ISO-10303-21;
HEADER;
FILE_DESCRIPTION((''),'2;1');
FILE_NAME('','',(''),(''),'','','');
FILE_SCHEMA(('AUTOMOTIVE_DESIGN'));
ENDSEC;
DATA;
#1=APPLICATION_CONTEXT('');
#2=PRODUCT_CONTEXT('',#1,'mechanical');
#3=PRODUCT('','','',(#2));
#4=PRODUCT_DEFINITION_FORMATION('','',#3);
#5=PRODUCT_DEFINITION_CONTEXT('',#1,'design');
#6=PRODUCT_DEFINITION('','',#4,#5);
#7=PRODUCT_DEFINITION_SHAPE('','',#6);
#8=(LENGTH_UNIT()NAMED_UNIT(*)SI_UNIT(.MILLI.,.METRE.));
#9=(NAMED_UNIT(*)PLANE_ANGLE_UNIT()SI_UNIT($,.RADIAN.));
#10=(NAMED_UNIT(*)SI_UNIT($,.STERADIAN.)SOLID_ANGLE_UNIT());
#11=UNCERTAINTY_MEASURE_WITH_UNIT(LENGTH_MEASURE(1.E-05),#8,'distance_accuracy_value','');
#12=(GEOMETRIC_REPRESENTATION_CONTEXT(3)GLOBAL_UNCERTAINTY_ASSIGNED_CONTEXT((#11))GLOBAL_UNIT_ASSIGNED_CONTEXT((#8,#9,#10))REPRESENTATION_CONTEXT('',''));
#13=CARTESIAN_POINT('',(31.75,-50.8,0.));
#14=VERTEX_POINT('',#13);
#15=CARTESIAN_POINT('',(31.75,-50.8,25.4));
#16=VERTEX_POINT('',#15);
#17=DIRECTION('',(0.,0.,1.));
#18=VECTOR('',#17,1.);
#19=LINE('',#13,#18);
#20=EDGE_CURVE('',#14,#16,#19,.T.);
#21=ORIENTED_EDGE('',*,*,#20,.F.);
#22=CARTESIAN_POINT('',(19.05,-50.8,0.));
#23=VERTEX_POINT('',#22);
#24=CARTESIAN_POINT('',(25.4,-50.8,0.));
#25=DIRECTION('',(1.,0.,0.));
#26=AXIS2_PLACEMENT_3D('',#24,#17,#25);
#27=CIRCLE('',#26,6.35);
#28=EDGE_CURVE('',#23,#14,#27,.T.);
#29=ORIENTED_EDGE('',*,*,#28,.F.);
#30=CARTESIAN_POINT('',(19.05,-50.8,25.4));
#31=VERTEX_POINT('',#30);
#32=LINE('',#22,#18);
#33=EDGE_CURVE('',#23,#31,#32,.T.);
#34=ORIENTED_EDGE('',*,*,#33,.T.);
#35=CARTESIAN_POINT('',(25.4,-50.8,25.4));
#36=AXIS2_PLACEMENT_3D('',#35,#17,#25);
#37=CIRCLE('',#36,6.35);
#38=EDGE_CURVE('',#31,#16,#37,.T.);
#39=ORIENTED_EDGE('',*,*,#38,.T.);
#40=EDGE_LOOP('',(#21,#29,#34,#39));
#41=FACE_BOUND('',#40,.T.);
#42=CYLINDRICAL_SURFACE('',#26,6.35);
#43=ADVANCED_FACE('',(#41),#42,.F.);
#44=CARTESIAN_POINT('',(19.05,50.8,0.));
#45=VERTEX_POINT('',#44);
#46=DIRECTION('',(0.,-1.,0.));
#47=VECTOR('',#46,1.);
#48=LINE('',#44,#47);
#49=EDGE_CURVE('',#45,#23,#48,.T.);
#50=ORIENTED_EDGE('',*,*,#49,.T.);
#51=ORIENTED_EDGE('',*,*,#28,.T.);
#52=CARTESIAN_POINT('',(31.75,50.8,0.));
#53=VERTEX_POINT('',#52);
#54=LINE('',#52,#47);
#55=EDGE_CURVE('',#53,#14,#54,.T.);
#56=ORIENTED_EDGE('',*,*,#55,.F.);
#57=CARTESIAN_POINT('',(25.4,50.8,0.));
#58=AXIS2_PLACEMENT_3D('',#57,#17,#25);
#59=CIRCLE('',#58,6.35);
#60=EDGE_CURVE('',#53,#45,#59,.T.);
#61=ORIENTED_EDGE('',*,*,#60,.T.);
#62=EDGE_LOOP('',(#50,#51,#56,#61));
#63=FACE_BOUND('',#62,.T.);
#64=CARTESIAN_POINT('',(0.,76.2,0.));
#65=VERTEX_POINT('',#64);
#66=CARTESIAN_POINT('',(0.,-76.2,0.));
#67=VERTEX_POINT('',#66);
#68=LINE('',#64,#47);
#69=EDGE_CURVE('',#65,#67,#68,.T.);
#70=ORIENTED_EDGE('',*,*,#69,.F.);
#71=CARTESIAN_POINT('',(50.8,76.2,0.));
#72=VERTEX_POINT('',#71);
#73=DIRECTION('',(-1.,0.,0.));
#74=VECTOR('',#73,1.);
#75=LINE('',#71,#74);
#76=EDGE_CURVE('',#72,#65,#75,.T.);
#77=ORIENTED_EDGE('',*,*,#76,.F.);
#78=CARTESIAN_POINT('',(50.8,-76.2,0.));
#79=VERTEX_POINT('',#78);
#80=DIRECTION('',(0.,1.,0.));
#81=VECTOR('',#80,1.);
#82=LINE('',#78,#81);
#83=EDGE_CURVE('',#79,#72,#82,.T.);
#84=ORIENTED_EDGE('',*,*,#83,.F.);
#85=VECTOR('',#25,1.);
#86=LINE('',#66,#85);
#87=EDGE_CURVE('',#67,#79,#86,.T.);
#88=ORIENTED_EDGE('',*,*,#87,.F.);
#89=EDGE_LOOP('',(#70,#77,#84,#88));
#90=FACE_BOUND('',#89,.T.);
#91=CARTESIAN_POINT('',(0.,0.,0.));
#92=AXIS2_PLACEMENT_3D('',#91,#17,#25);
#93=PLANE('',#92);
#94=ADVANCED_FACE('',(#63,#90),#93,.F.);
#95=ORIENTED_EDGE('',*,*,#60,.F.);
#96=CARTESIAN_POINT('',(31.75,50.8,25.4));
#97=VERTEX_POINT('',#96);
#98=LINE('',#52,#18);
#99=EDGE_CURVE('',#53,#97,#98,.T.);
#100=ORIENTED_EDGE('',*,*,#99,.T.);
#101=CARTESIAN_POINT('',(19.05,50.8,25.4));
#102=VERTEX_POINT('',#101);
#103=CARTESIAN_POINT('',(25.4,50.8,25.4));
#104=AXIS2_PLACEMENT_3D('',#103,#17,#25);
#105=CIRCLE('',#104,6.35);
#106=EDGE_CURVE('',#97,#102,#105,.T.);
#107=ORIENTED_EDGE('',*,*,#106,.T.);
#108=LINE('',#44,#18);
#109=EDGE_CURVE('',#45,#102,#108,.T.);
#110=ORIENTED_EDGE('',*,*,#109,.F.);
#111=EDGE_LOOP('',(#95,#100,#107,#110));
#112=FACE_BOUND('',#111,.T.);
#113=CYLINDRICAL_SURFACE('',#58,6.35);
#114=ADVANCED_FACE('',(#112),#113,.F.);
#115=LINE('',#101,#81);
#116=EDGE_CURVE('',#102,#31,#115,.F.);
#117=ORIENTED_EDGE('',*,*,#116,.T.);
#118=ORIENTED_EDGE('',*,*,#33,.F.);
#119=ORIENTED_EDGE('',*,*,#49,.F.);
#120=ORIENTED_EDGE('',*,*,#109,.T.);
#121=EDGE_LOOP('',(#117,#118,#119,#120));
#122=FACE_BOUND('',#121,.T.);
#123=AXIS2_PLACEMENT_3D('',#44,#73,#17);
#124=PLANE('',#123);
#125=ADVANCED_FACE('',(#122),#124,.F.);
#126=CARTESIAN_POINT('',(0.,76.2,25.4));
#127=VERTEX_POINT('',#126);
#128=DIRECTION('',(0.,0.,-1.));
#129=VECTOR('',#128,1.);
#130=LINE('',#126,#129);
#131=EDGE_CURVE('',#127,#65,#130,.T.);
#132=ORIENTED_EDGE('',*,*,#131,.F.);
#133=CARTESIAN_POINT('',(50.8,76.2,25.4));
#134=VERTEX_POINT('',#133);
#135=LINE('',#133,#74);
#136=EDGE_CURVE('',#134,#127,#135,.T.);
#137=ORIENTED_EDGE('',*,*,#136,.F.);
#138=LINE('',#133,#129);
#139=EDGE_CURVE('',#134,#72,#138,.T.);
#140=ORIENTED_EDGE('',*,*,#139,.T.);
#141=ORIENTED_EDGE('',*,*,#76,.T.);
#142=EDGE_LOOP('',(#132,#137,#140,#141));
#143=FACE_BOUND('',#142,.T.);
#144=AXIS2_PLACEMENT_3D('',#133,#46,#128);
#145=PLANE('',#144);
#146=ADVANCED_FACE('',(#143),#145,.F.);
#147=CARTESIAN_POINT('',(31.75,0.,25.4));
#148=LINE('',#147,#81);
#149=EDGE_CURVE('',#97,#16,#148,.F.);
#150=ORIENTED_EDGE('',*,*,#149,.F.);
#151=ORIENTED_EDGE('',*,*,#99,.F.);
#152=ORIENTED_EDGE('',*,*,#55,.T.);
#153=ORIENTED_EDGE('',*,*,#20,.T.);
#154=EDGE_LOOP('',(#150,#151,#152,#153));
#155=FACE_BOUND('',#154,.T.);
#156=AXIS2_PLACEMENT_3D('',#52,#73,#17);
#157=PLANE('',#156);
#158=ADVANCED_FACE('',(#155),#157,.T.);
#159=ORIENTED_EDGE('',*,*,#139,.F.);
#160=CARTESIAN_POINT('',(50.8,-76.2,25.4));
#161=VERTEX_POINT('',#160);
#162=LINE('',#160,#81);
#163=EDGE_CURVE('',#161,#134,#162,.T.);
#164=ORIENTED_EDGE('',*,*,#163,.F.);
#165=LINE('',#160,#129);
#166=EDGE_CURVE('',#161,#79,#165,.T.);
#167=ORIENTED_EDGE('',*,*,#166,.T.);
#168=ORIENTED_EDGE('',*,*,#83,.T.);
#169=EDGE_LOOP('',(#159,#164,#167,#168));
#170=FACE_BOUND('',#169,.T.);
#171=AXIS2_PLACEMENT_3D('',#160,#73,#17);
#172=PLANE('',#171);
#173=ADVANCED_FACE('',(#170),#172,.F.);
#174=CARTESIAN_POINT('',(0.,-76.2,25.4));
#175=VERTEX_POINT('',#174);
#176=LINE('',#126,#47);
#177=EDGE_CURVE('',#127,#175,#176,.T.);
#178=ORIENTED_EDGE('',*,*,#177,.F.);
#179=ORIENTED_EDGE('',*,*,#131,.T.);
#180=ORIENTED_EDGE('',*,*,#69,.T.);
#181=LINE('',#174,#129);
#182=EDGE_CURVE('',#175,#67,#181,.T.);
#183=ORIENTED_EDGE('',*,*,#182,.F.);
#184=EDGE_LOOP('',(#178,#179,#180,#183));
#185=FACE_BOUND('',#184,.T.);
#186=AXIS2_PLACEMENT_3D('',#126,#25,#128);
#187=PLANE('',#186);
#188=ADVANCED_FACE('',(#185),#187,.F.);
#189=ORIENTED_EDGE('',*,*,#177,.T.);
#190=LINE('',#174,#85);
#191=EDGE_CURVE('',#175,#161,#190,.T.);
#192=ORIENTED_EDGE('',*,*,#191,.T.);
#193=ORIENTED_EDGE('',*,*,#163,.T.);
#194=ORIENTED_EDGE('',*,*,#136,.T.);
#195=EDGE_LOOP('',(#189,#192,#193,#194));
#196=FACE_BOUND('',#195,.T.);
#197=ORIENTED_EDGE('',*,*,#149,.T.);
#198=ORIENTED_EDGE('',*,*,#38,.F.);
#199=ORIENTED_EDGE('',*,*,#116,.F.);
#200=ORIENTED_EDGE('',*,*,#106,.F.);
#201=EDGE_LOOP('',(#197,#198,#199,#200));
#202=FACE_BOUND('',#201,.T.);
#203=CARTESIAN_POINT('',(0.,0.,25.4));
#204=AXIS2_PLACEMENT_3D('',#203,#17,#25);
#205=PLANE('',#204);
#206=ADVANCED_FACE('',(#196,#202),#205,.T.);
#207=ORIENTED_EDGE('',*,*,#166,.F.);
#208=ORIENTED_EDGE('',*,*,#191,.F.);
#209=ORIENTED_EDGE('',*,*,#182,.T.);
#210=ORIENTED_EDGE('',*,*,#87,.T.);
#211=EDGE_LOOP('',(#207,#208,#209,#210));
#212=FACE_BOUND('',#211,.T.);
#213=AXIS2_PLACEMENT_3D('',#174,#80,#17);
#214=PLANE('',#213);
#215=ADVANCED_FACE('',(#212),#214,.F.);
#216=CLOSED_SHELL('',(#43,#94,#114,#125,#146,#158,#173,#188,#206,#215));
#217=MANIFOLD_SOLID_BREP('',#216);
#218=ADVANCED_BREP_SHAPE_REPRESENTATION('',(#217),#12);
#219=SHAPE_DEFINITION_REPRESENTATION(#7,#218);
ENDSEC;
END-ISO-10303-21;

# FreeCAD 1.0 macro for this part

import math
import FreeCAD as App
import Part
import Sketcher
from FreeCAD import Vector
Q = App.Units.Quantity

doc = App.newDocument("Part")
body = doc.addObject("PartDesign::Body", "Body")

# Sketch on XY plane
sketch1 = body.newObject("Sketcher::SketchObject", "Sketch")
sketch1.AttachmentSupport = (doc.getObject("XY_Plane"), [""])
sketch1.MapMode = "FlatFace"
sketch1.addGeometry([
    Part.LineSegment(Vector(0, 76, 0), Vector(0, -76, 0)),
    Part.LineSegment(Vector(0, -76, 0), Vector(51, -76, 0)),
    Part.LineSegment(Vector(51, -76, 0), Vector(51, 76, 0)),
    Part.LineSegment(Vector(51, 76, 0), Vector(0, 76, 0)),
], False)
sketch1.addConstraint([
    Sketcher.Constraint("Coincident", 0, 2, 1, 1),
    Sketcher.Constraint("Coincident", 1, 2, 2, 1),
    Sketcher.Constraint("Coincident", 2, 2, 3, 1),
    Sketcher.Constraint("Coincident", 3, 2, 0, 1),
    Sketcher.Constraint("Vertical", 0),
    Sketcher.Constraint("Horizontal", 1),
    Sketcher.Constraint("Vertical", 2),
    Sketcher.Constraint("Horizontal", 3),
    Sketcher.Constraint("Symmetric", 0, 2, 3, 2, -1, 1),
    Sketcher.Constraint("DistanceX", 1, 1, 1, 2, Q("2 in")),
    Sketcher.Constraint("DistanceY", 0, 2, 0, 1, Q("6 in")),
])
pad1 = body.newObject("PartDesign::Pad", "Pad")
pad1.Profile = sketch1
pad1.Length = Q("1 in")

# Sketch on XY plane
sketch2 = body.newObject("Sketcher::SketchObject", "Sketch001")
sketch2.AttachmentSupport = (doc.getObject("XY_Plane"), [""])
sketch2.MapMode = "FlatFace"
sketch2.AttachmentOffset = App.Placement(Vector(0, 0, 1 * 25.4), App.Rotation())
sketch2.addGeometry([
    Part.LineSegment(Vector(32, -51, 0), Vector(32, 51, 0)),
    Part.ArcOfCircle(Part.Circle(Vector(25, 51, 0), Vector(0, 0, 1), 6), math.radians(0), math.radians(180)),
    Part.LineSegment(Vector(19, 51, 0), Vector(19, -51, 0)),
    Part.ArcOfCircle(Part.Circle(Vector(25, -51, 0), Vector(0, 0, 1), 6), math.radians(180), math.radians(360)),
], False)
sketch2.addConstraint([
    Sketcher.Constraint("Tangent", 0, 2, 1, 1),
    Sketcher.Constraint("Tangent", 1, 2, 2, 1),
    Sketcher.Constraint("Tangent", 2, 2, 3, 1),
    Sketcher.Constraint("Tangent", 3, 2, 0, 1),
    Sketcher.Constraint("Vertical", 0),
    Sketcher.Constraint("Vertical", 2),
    Sketcher.Constraint("DistanceY", 0, 1, 0, 2, Q("4 in")),
    Sketcher.Constraint("Radius", 1, Q("0.25 in")),
    Sketcher.Constraint("DistanceX", -1, 1, 1, 3, Q("1 in")),
    Sketcher.Constraint("DistanceY", -1, 1, 1, 3, Q("2 in")),
])
pocket1 = body.newObject("PartDesign::Pocket", "Pocket")
pocket1.Profile = sketch2
pocket1.Type = "ThroughAll"
pocket1.Midplane = True

doc.recompute()
